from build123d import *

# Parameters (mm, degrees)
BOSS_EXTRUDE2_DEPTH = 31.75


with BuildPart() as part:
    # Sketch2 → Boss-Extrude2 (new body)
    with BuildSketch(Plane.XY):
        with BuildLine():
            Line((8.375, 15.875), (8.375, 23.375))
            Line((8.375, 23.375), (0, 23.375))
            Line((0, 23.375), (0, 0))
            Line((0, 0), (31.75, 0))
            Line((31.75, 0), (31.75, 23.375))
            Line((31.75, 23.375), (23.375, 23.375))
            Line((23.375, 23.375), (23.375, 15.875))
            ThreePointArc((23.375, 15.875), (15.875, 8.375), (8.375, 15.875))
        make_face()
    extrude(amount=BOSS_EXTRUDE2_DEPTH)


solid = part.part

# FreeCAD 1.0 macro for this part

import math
import FreeCAD as App
import Part
import Sketcher
from FreeCAD import Vector
Q = App.Units.Quantity

doc = App.newDocument("Part")
body = doc.addObject("PartDesign::Body", "Body")

sketch1 = body.newObject("Sketcher::SketchObject", "Sketch")
sketch1.AttachmentSupport = (doc.getObject("XY_Plane"), [""])
sketch1.MapMode = "FlatFace"
sketch1.addGeometry(Part.LineSegment(Vector(8.375, 15.875, 0), Vector(8.375, 23.375, 0)), False)
sketch1.addGeometry(Part.LineSegment(Vector(8.375, 23.375, 0), Vector(0, 23.375, 0)), False)
sketch1.addGeometry(Part.LineSegment(Vector(0, 23.375, 0), Vector(0, 0, 0)), False)
sketch1.addGeometry(Part.LineSegment(Vector(0, 0, 0), Vector(31.75, 0, 0)), False)
sketch1.addGeometry(Part.LineSegment(Vector(31.75, 0, 0), Vector(31.75, 23.375, 0)), False)
sketch1.addGeometry(Part.LineSegment(Vector(31.75, 23.375, 0), Vector(23.375, 23.375, 0)), False)
sketch1.addGeometry(Part.LineSegment(Vector(23.375, 23.375, 0), Vector(23.375, 15.875, 0)), False)
sketch1.addGeometry(Part.ArcOfCircle(Part.Circle(Vector(15.875, 15.875, 0), Vector(0, 0, 1), 7.5), math.radians(180), math.radians(360)), False)
sketch1.addConstraint(Sketcher.Constraint("Coincident", 0, 2, 1, 1))
sketch1.addConstraint(Sketcher.Constraint("Coincident", 1, 2, 2, 1))
sketch1.addConstraint(Sketcher.Constraint("Coincident", 2, 2, 3, 1))
sketch1.addConstraint(Sketcher.Constraint("Coincident", 3, 2, 4, 1))
sketch1.addConstraint(Sketcher.Constraint("Coincident", 4, 2, 5, 1))
sketch1.addConstraint(Sketcher.Constraint("Coincident", 5, 2, 6, 1))
sketch1.addConstraint(Sketcher.Constraint("Tangent", 6, 2, 7, 2))
sketch1.addConstraint(Sketcher.Constraint("Tangent", 7, 1, 0, 1))
sketch1.addConstraint(Sketcher.Constraint("Vertical", 0))
sketch1.addConstraint(Sketcher.Constraint("Horizontal", 1))
sketch1.addConstraint(Sketcher.Constraint("Vertical", 2))
sketch1.addConstraint(Sketcher.Constraint("Horizontal", 3))
sketch1.addConstraint(Sketcher.Constraint("Vertical", 4))
sketch1.addConstraint(Sketcher.Constraint("Horizontal", 5))
sketch1.addConstraint(Sketcher.Constraint("Vertical", 6))
sketch1.addConstraint(Sketcher.Constraint("Coincident", 2, 2, -1, 1))
sketch1.addConstraint(Sketcher.Constraint("Horizontal", 1, 2, 4, 2))
sketch1.addConstraint(Sketcher.Constraint("Equal", 1, 5))
sketch1.addConstraint(Sketcher.Constraint("Radius", 7, Q("7.5 mm")))
sketch1.addConstraint(Sketcher.Constraint("DistanceY", 0, 1, 0, 2, Q("7.5 mm")))
sketch1.addConstraint(Sketcher.Constraint("DistanceX", 3, 1, 3, 2, Q("31.75 mm")))
sketch1.addConstraint(Sketcher.Constraint("DistanceY", 2, 2, 2, 1, Q("23.375 mm")))
pad1 = body.newObject("PartDesign::Pad", "Pad")
pad1.Profile = sketch1
pad1.Length = 31.75

doc.recompute()
